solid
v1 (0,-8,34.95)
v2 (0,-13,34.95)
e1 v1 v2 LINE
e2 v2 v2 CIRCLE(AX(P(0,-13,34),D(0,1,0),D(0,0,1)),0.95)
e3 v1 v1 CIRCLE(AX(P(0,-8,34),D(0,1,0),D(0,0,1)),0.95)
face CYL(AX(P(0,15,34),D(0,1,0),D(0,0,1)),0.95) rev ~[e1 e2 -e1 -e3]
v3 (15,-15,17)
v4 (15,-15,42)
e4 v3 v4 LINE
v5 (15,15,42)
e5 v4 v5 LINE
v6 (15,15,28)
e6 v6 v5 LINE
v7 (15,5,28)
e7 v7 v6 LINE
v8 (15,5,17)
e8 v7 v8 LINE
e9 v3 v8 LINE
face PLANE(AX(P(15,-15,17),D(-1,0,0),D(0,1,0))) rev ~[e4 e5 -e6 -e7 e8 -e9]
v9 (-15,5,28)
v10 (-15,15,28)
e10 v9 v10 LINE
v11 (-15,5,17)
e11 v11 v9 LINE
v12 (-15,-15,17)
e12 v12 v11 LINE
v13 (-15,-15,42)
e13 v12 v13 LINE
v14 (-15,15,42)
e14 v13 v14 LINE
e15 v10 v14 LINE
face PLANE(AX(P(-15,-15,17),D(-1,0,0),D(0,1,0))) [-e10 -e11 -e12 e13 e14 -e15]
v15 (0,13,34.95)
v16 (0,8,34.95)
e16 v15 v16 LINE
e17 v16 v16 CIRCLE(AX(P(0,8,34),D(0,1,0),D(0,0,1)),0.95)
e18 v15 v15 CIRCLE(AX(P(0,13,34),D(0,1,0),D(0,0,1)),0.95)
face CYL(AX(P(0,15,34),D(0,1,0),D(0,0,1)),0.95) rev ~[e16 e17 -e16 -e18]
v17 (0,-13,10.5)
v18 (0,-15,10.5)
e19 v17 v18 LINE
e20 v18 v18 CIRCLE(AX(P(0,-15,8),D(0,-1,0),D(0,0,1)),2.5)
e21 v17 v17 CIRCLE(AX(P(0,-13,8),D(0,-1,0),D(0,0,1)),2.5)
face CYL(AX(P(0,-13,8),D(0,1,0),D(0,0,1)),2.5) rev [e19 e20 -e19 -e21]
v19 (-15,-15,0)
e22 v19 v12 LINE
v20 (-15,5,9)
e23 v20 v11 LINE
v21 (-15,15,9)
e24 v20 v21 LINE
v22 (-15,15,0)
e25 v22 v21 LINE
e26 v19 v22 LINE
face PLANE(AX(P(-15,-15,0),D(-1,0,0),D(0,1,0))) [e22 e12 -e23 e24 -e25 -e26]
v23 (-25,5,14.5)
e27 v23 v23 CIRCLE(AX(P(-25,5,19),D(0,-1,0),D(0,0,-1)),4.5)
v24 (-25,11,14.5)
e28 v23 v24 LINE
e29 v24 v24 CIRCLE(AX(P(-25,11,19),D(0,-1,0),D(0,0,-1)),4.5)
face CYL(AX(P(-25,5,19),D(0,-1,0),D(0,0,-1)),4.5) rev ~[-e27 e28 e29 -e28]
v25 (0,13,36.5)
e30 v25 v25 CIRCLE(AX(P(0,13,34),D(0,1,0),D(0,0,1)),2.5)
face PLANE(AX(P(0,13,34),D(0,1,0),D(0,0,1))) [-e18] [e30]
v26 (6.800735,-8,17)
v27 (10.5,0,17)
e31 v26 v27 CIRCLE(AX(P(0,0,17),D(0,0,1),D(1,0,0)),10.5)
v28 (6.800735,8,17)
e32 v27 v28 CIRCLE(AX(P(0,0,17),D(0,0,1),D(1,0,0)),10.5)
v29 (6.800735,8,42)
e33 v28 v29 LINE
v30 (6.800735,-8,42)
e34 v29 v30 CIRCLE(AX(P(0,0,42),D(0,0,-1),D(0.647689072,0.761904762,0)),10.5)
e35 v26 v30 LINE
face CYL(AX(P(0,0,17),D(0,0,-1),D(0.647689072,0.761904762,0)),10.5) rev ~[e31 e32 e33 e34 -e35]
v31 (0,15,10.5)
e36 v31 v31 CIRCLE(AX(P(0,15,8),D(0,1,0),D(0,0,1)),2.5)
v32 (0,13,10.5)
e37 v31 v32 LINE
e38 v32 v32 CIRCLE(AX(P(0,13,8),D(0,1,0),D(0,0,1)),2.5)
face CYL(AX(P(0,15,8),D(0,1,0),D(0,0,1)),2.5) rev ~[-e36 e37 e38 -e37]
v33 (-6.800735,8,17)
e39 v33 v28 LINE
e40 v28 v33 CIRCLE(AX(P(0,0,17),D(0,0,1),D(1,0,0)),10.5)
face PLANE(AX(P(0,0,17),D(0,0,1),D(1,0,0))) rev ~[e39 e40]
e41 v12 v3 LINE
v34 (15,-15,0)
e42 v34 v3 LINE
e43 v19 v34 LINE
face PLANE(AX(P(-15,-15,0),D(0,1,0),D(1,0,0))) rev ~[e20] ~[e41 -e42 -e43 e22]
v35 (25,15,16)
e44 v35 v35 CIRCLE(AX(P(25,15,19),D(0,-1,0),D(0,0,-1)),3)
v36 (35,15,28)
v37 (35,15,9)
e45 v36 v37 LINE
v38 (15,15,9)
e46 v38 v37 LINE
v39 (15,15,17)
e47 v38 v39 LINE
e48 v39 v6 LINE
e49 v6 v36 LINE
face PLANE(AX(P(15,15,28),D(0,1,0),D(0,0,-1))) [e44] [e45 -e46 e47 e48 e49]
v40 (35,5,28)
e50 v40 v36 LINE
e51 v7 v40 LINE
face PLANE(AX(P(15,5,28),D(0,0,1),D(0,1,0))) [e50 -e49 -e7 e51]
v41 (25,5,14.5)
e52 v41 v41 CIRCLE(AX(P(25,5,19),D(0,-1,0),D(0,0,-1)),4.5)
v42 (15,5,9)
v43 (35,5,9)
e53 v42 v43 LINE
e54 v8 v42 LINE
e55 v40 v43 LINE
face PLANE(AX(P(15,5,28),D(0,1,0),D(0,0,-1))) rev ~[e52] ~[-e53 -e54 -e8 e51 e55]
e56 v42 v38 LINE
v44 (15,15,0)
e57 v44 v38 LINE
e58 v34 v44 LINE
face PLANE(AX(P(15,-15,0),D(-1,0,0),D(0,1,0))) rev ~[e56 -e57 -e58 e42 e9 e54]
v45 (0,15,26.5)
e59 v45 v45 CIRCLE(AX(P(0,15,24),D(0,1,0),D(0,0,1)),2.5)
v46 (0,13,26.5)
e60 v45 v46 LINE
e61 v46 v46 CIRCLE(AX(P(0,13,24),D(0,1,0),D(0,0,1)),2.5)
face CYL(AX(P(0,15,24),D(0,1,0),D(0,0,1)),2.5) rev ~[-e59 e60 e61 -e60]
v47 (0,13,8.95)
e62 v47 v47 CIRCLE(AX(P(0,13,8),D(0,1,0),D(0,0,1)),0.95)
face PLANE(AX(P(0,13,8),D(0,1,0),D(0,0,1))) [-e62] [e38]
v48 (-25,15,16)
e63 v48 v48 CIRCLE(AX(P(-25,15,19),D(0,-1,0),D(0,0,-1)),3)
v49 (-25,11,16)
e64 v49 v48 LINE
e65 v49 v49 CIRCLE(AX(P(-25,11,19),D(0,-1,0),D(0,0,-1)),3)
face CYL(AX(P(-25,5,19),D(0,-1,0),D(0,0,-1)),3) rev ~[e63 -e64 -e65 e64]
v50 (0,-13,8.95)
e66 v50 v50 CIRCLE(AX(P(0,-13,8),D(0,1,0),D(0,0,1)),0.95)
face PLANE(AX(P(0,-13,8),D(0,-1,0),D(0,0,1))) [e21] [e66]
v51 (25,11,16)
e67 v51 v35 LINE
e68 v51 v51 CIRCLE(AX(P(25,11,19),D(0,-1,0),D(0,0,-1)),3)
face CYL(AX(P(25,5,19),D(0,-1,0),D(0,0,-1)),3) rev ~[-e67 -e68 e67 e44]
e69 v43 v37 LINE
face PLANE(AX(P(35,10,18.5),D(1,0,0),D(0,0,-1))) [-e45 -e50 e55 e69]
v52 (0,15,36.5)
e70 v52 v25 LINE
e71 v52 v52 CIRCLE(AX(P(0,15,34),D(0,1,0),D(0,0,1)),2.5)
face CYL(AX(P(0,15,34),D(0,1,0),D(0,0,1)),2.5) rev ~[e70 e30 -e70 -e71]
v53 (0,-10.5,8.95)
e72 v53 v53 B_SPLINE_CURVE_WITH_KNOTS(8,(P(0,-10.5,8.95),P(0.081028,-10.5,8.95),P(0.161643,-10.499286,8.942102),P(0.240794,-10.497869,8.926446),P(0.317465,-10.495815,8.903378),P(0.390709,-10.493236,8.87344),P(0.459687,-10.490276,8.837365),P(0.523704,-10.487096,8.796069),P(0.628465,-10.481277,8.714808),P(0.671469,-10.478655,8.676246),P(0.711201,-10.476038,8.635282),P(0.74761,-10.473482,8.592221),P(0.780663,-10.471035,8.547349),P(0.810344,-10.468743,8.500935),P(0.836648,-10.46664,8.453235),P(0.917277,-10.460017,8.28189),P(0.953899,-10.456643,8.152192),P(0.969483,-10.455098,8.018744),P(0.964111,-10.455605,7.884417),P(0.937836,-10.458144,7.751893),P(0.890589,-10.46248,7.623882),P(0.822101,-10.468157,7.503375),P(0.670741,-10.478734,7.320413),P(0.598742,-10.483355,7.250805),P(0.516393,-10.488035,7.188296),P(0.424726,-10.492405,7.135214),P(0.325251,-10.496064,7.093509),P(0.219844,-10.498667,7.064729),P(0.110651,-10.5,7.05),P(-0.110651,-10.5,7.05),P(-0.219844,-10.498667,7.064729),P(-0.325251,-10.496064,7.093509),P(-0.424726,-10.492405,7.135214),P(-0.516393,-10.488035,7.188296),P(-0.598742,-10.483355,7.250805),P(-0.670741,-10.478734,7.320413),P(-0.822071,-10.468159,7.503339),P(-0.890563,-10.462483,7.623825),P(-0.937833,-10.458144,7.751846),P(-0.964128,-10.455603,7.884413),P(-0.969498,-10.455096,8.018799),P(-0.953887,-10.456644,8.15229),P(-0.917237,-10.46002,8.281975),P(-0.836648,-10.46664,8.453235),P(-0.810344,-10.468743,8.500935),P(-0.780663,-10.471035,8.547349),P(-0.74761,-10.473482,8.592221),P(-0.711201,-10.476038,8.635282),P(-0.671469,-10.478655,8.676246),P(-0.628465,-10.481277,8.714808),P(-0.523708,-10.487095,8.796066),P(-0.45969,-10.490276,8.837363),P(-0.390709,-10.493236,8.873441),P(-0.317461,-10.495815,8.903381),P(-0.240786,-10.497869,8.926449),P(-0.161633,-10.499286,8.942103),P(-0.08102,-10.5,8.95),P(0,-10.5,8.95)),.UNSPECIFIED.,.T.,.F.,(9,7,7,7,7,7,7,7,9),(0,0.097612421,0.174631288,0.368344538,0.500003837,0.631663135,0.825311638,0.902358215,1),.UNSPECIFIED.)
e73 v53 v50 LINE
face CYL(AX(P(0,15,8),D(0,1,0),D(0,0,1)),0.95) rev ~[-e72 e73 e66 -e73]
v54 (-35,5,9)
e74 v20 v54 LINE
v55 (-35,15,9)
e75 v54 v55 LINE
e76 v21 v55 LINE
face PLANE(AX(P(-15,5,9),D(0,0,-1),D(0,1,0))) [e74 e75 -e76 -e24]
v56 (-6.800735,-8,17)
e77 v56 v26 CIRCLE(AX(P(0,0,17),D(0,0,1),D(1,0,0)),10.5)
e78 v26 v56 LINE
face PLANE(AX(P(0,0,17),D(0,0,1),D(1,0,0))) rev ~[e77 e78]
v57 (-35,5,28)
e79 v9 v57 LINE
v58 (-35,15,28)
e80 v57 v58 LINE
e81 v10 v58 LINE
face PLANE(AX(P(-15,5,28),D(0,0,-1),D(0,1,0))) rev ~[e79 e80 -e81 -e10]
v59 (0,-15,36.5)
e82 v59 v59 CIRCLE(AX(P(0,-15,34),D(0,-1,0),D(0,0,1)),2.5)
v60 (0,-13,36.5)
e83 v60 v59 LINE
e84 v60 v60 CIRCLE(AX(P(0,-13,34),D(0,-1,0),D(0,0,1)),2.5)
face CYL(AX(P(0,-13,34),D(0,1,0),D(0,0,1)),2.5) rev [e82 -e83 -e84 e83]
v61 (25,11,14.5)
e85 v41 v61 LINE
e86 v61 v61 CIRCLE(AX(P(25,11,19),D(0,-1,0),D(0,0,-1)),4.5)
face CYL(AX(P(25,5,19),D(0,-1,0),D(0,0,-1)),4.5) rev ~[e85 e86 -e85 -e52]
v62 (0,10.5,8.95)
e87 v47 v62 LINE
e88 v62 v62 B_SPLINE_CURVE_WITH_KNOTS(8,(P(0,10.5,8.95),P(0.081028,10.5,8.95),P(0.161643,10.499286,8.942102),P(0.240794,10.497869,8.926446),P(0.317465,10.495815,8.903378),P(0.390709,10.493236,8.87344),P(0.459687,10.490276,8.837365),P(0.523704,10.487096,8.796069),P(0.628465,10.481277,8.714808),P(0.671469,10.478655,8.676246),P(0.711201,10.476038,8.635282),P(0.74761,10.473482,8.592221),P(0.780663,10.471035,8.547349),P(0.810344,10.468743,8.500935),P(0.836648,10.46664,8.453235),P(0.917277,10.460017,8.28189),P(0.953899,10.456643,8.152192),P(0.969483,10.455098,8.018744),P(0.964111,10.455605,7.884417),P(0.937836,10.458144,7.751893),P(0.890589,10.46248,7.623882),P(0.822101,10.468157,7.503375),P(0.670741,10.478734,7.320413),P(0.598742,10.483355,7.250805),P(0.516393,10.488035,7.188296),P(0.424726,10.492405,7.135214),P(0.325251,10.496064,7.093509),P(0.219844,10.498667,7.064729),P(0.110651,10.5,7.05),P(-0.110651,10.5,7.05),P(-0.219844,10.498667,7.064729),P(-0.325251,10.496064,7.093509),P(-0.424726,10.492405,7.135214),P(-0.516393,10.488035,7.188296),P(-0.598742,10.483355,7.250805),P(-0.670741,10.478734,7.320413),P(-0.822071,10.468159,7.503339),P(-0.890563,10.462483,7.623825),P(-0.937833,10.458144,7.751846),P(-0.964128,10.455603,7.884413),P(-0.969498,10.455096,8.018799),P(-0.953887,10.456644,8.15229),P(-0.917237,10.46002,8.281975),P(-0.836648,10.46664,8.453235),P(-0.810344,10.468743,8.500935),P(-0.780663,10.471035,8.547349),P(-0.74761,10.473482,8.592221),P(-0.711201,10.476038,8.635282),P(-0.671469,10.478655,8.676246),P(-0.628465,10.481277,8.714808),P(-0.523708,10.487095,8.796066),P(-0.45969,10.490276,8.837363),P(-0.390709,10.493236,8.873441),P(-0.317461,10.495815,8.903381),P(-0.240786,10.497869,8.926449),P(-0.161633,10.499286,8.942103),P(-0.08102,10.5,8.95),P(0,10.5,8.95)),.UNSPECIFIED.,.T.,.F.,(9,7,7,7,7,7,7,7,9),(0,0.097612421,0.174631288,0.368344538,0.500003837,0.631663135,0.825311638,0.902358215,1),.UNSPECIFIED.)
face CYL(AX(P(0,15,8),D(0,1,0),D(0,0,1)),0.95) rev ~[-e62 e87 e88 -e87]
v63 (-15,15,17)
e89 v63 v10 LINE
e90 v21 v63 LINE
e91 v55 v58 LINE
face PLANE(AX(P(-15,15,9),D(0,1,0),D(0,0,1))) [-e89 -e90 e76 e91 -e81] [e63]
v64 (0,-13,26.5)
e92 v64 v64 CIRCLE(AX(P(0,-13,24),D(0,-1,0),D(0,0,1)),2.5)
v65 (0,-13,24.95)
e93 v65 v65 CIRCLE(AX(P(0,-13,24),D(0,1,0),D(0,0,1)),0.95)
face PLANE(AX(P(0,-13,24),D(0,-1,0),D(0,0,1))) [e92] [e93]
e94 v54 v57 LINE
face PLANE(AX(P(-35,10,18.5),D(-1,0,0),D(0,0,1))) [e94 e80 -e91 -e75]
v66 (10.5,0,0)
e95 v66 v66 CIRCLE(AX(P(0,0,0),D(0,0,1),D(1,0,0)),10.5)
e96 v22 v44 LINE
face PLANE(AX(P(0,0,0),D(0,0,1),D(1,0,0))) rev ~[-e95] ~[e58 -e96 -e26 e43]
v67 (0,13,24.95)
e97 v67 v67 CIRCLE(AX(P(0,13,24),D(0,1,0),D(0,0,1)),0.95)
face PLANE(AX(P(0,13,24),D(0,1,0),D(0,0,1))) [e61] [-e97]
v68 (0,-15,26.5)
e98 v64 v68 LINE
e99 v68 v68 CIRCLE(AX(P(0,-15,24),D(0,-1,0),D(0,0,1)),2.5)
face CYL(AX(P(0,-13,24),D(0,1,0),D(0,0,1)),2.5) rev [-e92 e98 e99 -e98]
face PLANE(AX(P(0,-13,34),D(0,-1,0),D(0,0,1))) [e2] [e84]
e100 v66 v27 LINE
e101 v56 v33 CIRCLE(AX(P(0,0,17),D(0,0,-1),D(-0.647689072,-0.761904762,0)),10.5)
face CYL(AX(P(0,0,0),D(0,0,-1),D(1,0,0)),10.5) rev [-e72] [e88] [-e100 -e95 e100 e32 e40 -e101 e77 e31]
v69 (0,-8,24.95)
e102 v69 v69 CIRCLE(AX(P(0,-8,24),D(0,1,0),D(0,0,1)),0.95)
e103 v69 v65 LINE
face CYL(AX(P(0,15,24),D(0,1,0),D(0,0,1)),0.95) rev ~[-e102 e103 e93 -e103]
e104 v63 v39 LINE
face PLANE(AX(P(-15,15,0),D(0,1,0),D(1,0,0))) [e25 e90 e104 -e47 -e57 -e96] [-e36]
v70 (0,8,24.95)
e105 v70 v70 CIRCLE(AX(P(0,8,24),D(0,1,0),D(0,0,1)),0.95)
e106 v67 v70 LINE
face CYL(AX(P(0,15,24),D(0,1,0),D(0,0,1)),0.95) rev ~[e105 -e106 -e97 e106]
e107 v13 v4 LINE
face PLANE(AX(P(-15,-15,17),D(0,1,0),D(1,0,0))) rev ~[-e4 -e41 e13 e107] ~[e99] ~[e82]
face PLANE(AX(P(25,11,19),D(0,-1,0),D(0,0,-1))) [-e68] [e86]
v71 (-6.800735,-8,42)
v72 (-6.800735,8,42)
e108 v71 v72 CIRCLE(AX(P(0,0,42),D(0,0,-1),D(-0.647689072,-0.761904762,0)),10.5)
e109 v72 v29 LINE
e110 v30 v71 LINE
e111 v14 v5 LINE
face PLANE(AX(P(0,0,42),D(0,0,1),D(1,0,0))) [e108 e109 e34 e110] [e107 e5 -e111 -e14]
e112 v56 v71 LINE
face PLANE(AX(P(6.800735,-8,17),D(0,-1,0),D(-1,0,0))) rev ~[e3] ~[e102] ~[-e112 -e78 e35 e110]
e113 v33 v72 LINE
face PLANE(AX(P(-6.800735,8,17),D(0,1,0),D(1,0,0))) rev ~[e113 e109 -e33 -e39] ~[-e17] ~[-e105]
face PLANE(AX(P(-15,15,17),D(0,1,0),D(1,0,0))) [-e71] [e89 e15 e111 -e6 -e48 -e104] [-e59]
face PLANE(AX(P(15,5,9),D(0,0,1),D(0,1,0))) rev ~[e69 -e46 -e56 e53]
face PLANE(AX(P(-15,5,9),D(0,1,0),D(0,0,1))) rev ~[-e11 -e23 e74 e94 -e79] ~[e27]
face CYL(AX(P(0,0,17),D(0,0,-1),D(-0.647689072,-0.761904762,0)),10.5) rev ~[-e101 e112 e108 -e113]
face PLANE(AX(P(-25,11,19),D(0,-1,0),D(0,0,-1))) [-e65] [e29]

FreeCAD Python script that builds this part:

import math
import FreeCAD as App
import Part
import Sketcher


def add_polygon(sketch, points):
    """Adds a closed chain of lines whose ends are joined by coincident constraints."""
    first, n = sketch.GeometryCount, len(points)
    for a, b in zip(points, points[1:] + points[:1]):
        sketch.addGeometry(Part.LineSegment(App.Vector(*a, 0), App.Vector(*b, 0)), False)
    for i in range(n):
        sketch.addConstraint(Sketcher.Constraint("Coincident", first + i, 2, first + (i + 1) % n, 1))

doc = App.newDocument("Part")
body = doc.addObject("PartDesign::Body", "Body")

sketch1 = body.newObject("Sketcher::SketchObject", "Sketch")
sketch1.AttachmentSupport = (doc.getObject("XY_Plane"), [""])
sketch1.MapMode = "FlatFace"
add_polygon(sketch1, [(-15, 15), (-15, -15), (15, -15), (15, 15)])
sketch1.addGeometry(Part.Circle(App.Vector(0, 0, 0), App.Vector(0, 0, 1), 10), False)
sketch1.addConstraint([
    Sketcher.Constraint("Vertical", 0),
    Sketcher.Constraint("Horizontal", 1),
    Sketcher.Constraint("Vertical", 2),
    Sketcher.Constraint("Horizontal", 3),
    Sketcher.Constraint("Coincident", 4, 3, -1, 1),
    Sketcher.Constraint("Symmetric", 0, 2, 2, 2, -1, 1),
    Sketcher.Constraint("Equal", 3, 0),
    Sketcher.Constraint("Diameter", 4, 21.0),
    Sketcher.Constraint("DistanceX", 1, 1, 1, 2, 30.0),
])
pad1 = body.newObject("PartDesign::Pad", "Pad")
pad1.Profile = sketch1
pad1.Length = 17

sketch2 = body.newObject("Sketcher::SketchObject", "Sketch001")
sketch2.AttachmentSupport = (doc.getObject("XY_Plane"), [""])
sketch2.MapMode = "FlatFace"
sketch2.AttachmentOffset = App.Placement(App.Vector(0, 0, 17), App.Rotation())
add_polygon(sketch2, [(-15, 15), (-15, -15), (15, -15), (15, 15)])
sketch2.addGeometry(Part.ArcOfCircle(Part.Circle(App.Vector(0, 0, 0), App.Vector(0, 0, 1), 10), math.radians(130), math.radians(230)), False)
sketch2.addGeometry(Part.LineSegment(App.Vector(-7, 8, 0), App.Vector(7, 8, 0)), False)
sketch2.addGeometry(Part.ArcOfCircle(Part.Circle(App.Vector(0, 0, 0), App.Vector(0, 0, 1), 10), math.radians(-50), math.radians(50)), False)
sketch2.addGeometry(Part.LineSegment(App.Vector(7, -8, 0), App.Vector(-7, -8, 0)), False)
sketch2.addConstraint([
    Sketcher.Constraint("Coincident", 4, 1, 5, 1),
    Sketcher.Constraint("Coincident", 5, 2, 6, 2),
    Sketcher.Constraint("Coincident", 6, 1, 7, 1),
    Sketcher.Constraint("Coincident", 7, 2, 4, 2),
    Sketcher.Constraint("Vertical", 0),
    Sketcher.Constraint("Horizontal", 1),
    Sketcher.Constraint("Vertical", 2),
    Sketcher.Constraint("Horizontal", 3),
    Sketcher.Constraint("Horizontal", 5),
    Sketcher.Constraint("Horizontal", 7),
    Sketcher.Constraint("Coincident", 4, 3, -1, 1),
    Sketcher.Constraint("Coincident", 6, 3, -1, 1),
    Sketcher.Constraint("Equal", 4, 6),
    Sketcher.Constraint("Symmetric", 0, 2, 2, 2, -1, 1),
    Sketcher.Constraint("Vertical", 5, 2, 6, 1),
    Sketcher.Constraint("Equal", 3, 0),
    Sketcher.Constraint("Radius", 4, 10.5),
    Sketcher.Constraint("DistanceX", 1, 1, 1, 2, 30.0),
    Sketcher.Constraint("DistanceY", -1, 1, 4, 1, 8.0),
])
pad2 = body.newObject("PartDesign::Pad", "Pad001")
pad2.Profile = sketch2
pad2.Length = 25

sketch3 = body.newObject("Sketcher::SketchObject", "Sketch002")
sketch3.AttachmentSupport = (doc.getObject("XZ_Plane"), [""])
sketch3.MapMode = "FlatFace"
sketch3.AttachmentOffset = App.Placement(App.Vector(0, 0, -15), App.Rotation())
sketch3.addGeometry([
    Part.Circle(App.Vector(0, 34, 0), App.Vector(0, 0, 1), 0.9),
    Part.Circle(App.Vector(0, 8, 0), App.Vector(0, 0, 1), 0.9),
    Part.Circle(App.Vector(0, 24, 0), App.Vector(0, 0, 1), 0.9),
], False)
sketch3.addConstraint([
    Sketcher.Constraint("Equal", 0, 1),
    Sketcher.Constraint("Equal", 1, 2),
    Sketcher.Constraint("PointOnObject", 0, 3, -2),
    Sketcher.Constraint("PointOnObject", 1, 3, -2),
    Sketcher.Constraint("PointOnObject", 2, 3, -2),
    Sketcher.Constraint("Diameter", 0, 1.9),
    Sketcher.Constraint("DistanceY", -1, 1, 0, 3, 34.0),
    Sketcher.Constraint("DistanceY", -1, 1, 1, 3, 8.0),
    Sketcher.Constraint("DistanceY", -1, 1, 2, 3, 24.0),
])
pocket1 = body.newObject("PartDesign::Pocket", "Pocket")
pocket1.Profile = sketch3
pocket1.Type = "ThroughAll"
pocket1.Reversed = True

sketch4 = body.newObject("Sketcher::SketchObject", "Sketch003")
sketch4.AttachmentSupport = (doc.getObject("XZ_Plane"), [""])
sketch4.MapMode = "FlatFace"
sketch4.AttachmentOffset = App.Placement(App.Vector(0, 0, -15), App.Rotation())
sketch4.addGeometry([
    Part.Circle(App.Vector(0, 8, 0), App.Vector(0, 0, 1), 2.5),
    Part.Circle(App.Vector(0, 24, 0), App.Vector(0, 0, 1), 2.5),
    Part.Circle(App.Vector(0, 34, 0), App.Vector(0, 0, 1), 2.5),
], False)
sketch4.addConstraint([
    Sketcher.Constraint("Equal", 0, 1),
    Sketcher.Constraint("Equal", 1, 2),
    Sketcher.Constraint("PointOnObject", 0, 3, -2),
    Sketcher.Constraint("PointOnObject", 1, 3, -2),
    Sketcher.Constraint("PointOnObject", 2, 3, -2),
    Sketcher.Constraint("Diameter", 0, 5.0),
    Sketcher.Constraint("DistanceY", -1, 1, 0, 3, 8.0),
    Sketcher.Constraint("DistanceY", -1, 1, 1, 3, 24.0),
    Sketcher.Constraint("DistanceY", -1, 1, 2, 3, 34.0),
])
pocket2 = body.newObject("PartDesign::Pocket", "Pocket001")
pocket2.Profile = sketch4
pocket2.Length = 2
pocket2.Reversed = True

sketch5 = body.newObject("Sketcher::SketchObject", "Sketch004")
sketch5.AttachmentSupport = (doc.getObject("XZ_Plane"), [""])
sketch5.MapMode = "FlatFace"
sketch5.AttachmentOffset = App.Placement(App.Vector(0, 0, 13), App.Rotation())
sketch5.addGeometry([
    Part.Circle(App.Vector(0, 34, 0), App.Vector(0, 0, 1), 2.5),
    Part.Circle(App.Vector(0, 24, 0), App.Vector(0, 0, 1), 2.5),
    Part.Circle(App.Vector(0, 8, 0), App.Vector(0, 0, 1), 2.5),
], False)
sketch5.addConstraint([
    Sketcher.Constraint("Equal", 0, 1),
    Sketcher.Constraint("Equal", 1, 2),
    Sketcher.Constraint("PointOnObject", 0, 3, -2),
    Sketcher.Constraint("PointOnObject", 1, 3, -2),
    Sketcher.Constraint("PointOnObject", 2, 3, -2),
    Sketcher.Constraint("Diameter", 0, 5.0),
    Sketcher.Constraint("DistanceY", -1, 1, 0, 3, 34.0),
    Sketcher.Constraint("DistanceY", -1, 1, 1, 3, 24.0),
    Sketcher.Constraint("DistanceY", -1, 1, 2, 3, 8.0),
])
pocket3 = body.newObject("PartDesign::Pocket", "Pocket002")
pocket3.Profile = sketch5
pocket3.Length = 2
pocket3.Reversed = True

sketch6 = body.newObject("Sketcher::SketchObject", "Sketch005")
sketch6.AttachmentSupport = (doc.getObject("YZ_Plane"), [""])
sketch6.MapMode = "FlatFace"
sketch6.AttachmentOffset = App.Placement(App.Vector(0, 0, -15), App.Rotation())
add_polygon(sketch6, [(15, 9), (5, 9), (5, 28), (15, 28)])
sketch6.addConstraint([
    Sketcher.Constraint("Horizontal", 0),
    Sketcher.Constraint("Vertical", 1),
    Sketcher.Constraint("Horizontal", 2),
    Sketcher.Constraint("Vertical", 3),
    Sketcher.Constraint("DistanceX", 0, 2, 0, 1, 10.0),
    Sketcher.Constraint("DistanceY", 1, 1, 1, 2, 19.0),
    Sketcher.Constraint("DistanceX", -1, 1, 0, 2, 5.0),
    Sketcher.Constraint("DistanceY", -1, 1, 0, 2, 9.0),
])
pad3 = body.newObject("PartDesign::Pad", "Pad002")
pad3.Profile = sketch6
pad3.Length = 20
pad3.Reversed = True

sketch7 = body.newObject("Sketcher::SketchObject", "Sketch006")
sketch7.AttachmentSupport = (doc.getObject("YZ_Plane"), [""])
sketch7.MapMode = "FlatFace"
sketch7.AttachmentOffset = App.Placement(App.Vector(0, 0, 15), App.Rotation())
add_polygon(sketch7, [(15, 28), (5, 28), (5, 9), (15, 9)])
sketch7.addConstraint([
    Sketcher.Constraint("Horizontal", 0),
    Sketcher.Constraint("Vertical", 1),
    Sketcher.Constraint("Horizontal", 2),
    Sketcher.Constraint("Vertical", 3),
    Sketcher.Constraint("DistanceX", 0, 2, 0, 1, 10.0),
    Sketcher.Constraint("DistanceY", 1, 2, 1, 1, 19.0),
    Sketcher.Constraint("DistanceX", -1, 1, 0, 2, 5.0),
    Sketcher.Constraint("DistanceY", -1, 1, 0, 2, 28.0),
])
pad4 = body.newObject("PartDesign::Pad", "Pad003")
pad4.Profile = sketch7
pad4.Length = 20

sketch8 = body.newObject("Sketcher::SketchObject", "Sketch007")
sketch8.AttachmentSupport = (doc.getObject("XZ_Plane"), [""])
sketch8.MapMode = "FlatFace"
sketch8.AttachmentOffset = App.Placement(App.Vector(0, 0, -5), App.Rotation())
sketch8.addGeometry([
    Part.Circle(App.Vector(-25, 19, 0), App.Vector(0, 0, 1), 3),
    Part.Circle(App.Vector(25, 19, 0), App.Vector(0, 0, 1), 3),
], False)
sketch8.addConstraint([
    Sketcher.Constraint("Equal", 0, 1),
    Sketcher.Constraint("Symmetric", 0, 3, 1, 3, -2),
    Sketcher.Constraint("Diameter", 0, 6.0),
    Sketcher.Constraint("DistanceX", 0, 3, -1, 1, 25.0),
    Sketcher.Constraint("DistanceY", -1, 1, 0, 3, 19.0),
])
pocket4 = body.newObject("PartDesign::Pocket", "Pocket003")
pocket4.Profile = sketch8
pocket4.Length = 10

sketch9 = body.newObject("Sketcher::SketchObject", "Sketch008")
sketch9.AttachmentSupport = (doc.getObject("XZ_Plane"), [""])
sketch9.MapMode = "FlatFace"
sketch9.AttachmentOffset = App.Placement(App.Vector(0, 0, -5), App.Rotation())
sketch9.addGeometry([
    Part.Circle(App.Vector(-25, 19, 0), App.Vector(0, 0, 1), 4.5),
    Part.Circle(App.Vector(25, 19, 0), App.Vector(0, 0, 1), 4.5),
], False)
sketch9.addConstraint([
    Sketcher.Constraint("Equal", 0, 1),
    Sketcher.Constraint("Symmetric", 0, 3, 1, 3, -2),
    Sketcher.Constraint("Diameter", 0, 9.0),
    Sketcher.Constraint("DistanceX", 0, 3, -1, 1, 25.0),
    Sketcher.Constraint("DistanceY", -1, 1, 0, 3, 19.0),
])
pocket5 = body.newObject("PartDesign::Pocket", "Pocket004")
pocket5.Profile = sketch9
pocket5.Length = 6

doc.recompute()
